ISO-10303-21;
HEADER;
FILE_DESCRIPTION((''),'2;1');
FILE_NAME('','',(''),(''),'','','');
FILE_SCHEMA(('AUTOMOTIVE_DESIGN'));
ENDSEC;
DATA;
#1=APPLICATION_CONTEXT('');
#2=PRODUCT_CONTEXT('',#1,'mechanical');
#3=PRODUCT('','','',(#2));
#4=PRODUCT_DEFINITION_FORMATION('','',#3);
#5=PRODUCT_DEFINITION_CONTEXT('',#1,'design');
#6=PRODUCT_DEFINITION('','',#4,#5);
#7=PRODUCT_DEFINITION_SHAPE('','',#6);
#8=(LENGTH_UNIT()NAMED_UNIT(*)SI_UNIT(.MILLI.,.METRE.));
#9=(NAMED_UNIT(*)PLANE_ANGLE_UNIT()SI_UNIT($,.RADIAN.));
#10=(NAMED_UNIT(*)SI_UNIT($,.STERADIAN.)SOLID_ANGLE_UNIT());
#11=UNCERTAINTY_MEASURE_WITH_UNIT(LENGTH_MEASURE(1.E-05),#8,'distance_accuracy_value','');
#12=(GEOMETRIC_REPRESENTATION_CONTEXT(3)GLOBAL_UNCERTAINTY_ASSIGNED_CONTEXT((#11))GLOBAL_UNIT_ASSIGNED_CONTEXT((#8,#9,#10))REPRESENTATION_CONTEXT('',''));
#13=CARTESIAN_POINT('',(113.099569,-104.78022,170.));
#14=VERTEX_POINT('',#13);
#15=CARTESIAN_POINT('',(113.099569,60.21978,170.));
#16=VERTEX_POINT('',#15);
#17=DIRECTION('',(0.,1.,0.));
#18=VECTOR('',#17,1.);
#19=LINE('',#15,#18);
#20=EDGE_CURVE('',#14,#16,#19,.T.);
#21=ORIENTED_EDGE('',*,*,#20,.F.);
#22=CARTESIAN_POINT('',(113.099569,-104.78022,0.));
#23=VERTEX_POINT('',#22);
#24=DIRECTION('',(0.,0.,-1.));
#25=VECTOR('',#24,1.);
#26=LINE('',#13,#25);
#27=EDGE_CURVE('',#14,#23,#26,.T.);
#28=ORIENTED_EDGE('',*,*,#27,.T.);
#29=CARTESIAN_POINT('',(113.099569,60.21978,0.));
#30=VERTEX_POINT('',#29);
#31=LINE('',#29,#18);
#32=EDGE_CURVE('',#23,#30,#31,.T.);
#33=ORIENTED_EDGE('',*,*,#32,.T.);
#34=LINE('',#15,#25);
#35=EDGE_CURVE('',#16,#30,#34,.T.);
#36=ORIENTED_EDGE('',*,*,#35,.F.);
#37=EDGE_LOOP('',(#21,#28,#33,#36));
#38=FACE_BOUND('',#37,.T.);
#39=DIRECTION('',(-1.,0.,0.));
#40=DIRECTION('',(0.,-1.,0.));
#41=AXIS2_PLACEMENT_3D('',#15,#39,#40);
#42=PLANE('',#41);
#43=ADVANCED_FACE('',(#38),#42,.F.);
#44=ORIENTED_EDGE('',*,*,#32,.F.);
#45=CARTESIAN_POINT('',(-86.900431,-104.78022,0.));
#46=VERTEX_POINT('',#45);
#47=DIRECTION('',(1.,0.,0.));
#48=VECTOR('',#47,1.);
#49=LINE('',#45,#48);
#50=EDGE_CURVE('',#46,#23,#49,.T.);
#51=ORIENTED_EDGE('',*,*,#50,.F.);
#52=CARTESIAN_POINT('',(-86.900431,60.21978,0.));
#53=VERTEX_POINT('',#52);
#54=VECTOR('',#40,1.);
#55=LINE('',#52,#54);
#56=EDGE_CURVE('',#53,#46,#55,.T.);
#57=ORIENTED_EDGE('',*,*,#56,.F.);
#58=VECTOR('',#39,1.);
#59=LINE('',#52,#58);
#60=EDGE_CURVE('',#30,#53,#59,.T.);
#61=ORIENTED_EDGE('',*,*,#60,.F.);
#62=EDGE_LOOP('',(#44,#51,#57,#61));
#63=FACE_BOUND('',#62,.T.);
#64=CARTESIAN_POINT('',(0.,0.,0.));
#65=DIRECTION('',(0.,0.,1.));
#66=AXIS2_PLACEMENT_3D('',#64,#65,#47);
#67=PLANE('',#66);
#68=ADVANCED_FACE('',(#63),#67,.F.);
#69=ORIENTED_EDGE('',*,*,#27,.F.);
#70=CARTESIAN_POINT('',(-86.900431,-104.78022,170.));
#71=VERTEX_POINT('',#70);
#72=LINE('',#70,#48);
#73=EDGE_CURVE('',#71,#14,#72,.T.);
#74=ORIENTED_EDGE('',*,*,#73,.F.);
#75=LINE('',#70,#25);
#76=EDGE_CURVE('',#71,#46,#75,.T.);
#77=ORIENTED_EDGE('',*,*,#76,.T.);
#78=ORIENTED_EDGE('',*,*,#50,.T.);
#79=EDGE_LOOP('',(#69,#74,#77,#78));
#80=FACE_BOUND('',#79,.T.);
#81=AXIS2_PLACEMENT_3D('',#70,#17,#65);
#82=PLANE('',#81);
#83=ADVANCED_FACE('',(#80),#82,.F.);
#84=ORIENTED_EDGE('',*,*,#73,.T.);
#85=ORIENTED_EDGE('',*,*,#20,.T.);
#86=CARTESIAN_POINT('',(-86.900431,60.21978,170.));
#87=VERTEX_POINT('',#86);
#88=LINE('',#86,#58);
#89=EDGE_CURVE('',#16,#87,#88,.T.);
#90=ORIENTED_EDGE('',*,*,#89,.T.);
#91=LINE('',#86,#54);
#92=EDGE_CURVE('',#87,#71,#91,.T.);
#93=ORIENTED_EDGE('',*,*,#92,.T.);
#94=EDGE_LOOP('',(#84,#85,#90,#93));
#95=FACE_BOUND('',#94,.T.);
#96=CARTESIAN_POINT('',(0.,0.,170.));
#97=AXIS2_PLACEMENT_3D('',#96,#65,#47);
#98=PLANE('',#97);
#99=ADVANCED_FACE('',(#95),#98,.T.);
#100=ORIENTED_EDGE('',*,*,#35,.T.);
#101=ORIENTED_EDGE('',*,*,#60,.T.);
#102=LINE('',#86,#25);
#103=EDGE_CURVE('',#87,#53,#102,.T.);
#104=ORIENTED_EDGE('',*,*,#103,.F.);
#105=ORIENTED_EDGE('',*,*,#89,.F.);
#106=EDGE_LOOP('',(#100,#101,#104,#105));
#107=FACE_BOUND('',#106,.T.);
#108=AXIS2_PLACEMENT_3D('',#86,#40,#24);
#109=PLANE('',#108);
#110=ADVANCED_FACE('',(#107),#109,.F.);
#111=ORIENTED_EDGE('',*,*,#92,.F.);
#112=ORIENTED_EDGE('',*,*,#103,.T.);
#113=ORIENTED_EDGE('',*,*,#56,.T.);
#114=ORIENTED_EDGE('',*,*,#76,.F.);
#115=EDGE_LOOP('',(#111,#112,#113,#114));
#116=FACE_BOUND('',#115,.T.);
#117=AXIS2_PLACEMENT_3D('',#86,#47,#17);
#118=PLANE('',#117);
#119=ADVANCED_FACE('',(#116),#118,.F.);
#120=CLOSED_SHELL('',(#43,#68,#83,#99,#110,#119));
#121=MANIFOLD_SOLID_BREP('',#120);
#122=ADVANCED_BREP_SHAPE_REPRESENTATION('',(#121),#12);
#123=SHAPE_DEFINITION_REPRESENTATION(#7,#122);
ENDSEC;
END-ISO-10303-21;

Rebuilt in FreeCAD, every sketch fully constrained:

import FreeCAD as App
import Part
import Sketcher
Q = App.Units.Quantity


def add_polygon(sketch, points):
    """Adds a closed chain of lines whose ends are joined by coincident constraints."""
    first, n = sketch.GeometryCount, len(points)
    for a, b in zip(points, points[1:] + points[:1]):
        sketch.addGeometry(Part.LineSegment(App.Vector(*a, 0), App.Vector(*b, 0)), False)
    for i in range(n):
        sketch.addConstraint(Sketcher.Constraint("Coincident", first + i, 2, first + (i + 1) % n, 1))

doc = App.newDocument("Part")
body = doc.addObject("PartDesign::Body", "Body")

sketch1 = body.newObject("Sketcher::SketchObject", "Sketch")
sketch1.AttachmentSupport = (doc.getObject("XY_Plane"), [""])
sketch1.MapMode = "FlatFace"
add_polygon(sketch1, [(-87, 60), (-87, -105), (113, -105), (113, 60)])
sketch1.addConstraint([
    Sketcher.Constraint("Vertical", 0),
    Sketcher.Constraint("Horizontal", 1),
    Sketcher.Constraint("Vertical", 2),
    Sketcher.Constraint("Horizontal", 3),
    Sketcher.Constraint("DistanceX", 1, 1, 1, 2, Q("200 mm")),
    Sketcher.Constraint("DistanceY", 0, 2, 0, 1, Q("165 mm")),
    Sketcher.Constraint("DistanceX", 0, 2, -1, 1, Q("86.900431 mm")),
    Sketcher.Constraint("DistanceY", 0, 2, -1, 1, Q("104.78022 mm")),
])
pad1 = body.newObject("PartDesign::Pad", "Pad")
pad1.Profile = sketch1
pad1.Length = 170

doc.recompute()
